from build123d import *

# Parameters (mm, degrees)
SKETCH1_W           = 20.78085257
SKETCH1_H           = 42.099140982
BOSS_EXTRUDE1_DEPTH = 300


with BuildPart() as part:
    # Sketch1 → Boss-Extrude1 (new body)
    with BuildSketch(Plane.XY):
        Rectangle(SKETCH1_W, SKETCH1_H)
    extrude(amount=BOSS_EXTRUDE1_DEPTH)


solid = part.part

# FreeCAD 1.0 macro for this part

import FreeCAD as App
import Part
import Sketcher
Q = App.Units.Quantity


def add_polygon(sketch, points):
    """Adds a closed chain of lines whose ends are joined by coincident constraints."""
    first, n = sketch.GeometryCount, len(points)
    for a, b in zip(points, points[1:] + points[:1]):
        sketch.addGeometry(Part.LineSegment(App.Vector(*a, 0), App.Vector(*b, 0)), False)
    for i in range(n):
        sketch.addConstraint(Sketcher.Constraint("Coincident", first + i, 2, first + (i + 1) % n, 1))

doc = App.newDocument("Part")
body = doc.addObject("PartDesign::Body", "Body")

# Sketch on XY plane
sketch1 = doc.addObject("Sketcher::SketchObject", "Sketch")
body.addObject(sketch1)
sketch1.AttachmentSupport = (doc.XY_Plane, [""])
sketch1.MapMode = "FlatFace"
add_polygon(sketch1, [(-10, 21), (-10, -21), (10, -21), (10, 21)])  # lines 0-3
sketch1.addConstraint(Sketcher.Constraint("Vertical", 0))
sketch1.addConstraint(Sketcher.Constraint("Horizontal", 1))
sketch1.addConstraint(Sketcher.Constraint("Vertical", 2))
sketch1.addConstraint(Sketcher.Constraint("Horizontal", 3))
sketch1.addConstraint(Sketcher.Constraint("Symmetric", 0, 2, 2, 2, -1, 1))
sketch1.addConstraint(Sketcher.Constraint("DistanceY", 0, 2, 0, 1, Q("42.099141 mm")))
sketch1.addConstraint(Sketcher.Constraint("DistanceX", 1, 1, 1, 2, Q("20.780853 mm")))
pad1 = doc.addObject("PartDesign::Pad", "Pad")
body.addObject(pad1)
pad1.Profile = sketch1
pad1.Length = 300

doc.recompute()
